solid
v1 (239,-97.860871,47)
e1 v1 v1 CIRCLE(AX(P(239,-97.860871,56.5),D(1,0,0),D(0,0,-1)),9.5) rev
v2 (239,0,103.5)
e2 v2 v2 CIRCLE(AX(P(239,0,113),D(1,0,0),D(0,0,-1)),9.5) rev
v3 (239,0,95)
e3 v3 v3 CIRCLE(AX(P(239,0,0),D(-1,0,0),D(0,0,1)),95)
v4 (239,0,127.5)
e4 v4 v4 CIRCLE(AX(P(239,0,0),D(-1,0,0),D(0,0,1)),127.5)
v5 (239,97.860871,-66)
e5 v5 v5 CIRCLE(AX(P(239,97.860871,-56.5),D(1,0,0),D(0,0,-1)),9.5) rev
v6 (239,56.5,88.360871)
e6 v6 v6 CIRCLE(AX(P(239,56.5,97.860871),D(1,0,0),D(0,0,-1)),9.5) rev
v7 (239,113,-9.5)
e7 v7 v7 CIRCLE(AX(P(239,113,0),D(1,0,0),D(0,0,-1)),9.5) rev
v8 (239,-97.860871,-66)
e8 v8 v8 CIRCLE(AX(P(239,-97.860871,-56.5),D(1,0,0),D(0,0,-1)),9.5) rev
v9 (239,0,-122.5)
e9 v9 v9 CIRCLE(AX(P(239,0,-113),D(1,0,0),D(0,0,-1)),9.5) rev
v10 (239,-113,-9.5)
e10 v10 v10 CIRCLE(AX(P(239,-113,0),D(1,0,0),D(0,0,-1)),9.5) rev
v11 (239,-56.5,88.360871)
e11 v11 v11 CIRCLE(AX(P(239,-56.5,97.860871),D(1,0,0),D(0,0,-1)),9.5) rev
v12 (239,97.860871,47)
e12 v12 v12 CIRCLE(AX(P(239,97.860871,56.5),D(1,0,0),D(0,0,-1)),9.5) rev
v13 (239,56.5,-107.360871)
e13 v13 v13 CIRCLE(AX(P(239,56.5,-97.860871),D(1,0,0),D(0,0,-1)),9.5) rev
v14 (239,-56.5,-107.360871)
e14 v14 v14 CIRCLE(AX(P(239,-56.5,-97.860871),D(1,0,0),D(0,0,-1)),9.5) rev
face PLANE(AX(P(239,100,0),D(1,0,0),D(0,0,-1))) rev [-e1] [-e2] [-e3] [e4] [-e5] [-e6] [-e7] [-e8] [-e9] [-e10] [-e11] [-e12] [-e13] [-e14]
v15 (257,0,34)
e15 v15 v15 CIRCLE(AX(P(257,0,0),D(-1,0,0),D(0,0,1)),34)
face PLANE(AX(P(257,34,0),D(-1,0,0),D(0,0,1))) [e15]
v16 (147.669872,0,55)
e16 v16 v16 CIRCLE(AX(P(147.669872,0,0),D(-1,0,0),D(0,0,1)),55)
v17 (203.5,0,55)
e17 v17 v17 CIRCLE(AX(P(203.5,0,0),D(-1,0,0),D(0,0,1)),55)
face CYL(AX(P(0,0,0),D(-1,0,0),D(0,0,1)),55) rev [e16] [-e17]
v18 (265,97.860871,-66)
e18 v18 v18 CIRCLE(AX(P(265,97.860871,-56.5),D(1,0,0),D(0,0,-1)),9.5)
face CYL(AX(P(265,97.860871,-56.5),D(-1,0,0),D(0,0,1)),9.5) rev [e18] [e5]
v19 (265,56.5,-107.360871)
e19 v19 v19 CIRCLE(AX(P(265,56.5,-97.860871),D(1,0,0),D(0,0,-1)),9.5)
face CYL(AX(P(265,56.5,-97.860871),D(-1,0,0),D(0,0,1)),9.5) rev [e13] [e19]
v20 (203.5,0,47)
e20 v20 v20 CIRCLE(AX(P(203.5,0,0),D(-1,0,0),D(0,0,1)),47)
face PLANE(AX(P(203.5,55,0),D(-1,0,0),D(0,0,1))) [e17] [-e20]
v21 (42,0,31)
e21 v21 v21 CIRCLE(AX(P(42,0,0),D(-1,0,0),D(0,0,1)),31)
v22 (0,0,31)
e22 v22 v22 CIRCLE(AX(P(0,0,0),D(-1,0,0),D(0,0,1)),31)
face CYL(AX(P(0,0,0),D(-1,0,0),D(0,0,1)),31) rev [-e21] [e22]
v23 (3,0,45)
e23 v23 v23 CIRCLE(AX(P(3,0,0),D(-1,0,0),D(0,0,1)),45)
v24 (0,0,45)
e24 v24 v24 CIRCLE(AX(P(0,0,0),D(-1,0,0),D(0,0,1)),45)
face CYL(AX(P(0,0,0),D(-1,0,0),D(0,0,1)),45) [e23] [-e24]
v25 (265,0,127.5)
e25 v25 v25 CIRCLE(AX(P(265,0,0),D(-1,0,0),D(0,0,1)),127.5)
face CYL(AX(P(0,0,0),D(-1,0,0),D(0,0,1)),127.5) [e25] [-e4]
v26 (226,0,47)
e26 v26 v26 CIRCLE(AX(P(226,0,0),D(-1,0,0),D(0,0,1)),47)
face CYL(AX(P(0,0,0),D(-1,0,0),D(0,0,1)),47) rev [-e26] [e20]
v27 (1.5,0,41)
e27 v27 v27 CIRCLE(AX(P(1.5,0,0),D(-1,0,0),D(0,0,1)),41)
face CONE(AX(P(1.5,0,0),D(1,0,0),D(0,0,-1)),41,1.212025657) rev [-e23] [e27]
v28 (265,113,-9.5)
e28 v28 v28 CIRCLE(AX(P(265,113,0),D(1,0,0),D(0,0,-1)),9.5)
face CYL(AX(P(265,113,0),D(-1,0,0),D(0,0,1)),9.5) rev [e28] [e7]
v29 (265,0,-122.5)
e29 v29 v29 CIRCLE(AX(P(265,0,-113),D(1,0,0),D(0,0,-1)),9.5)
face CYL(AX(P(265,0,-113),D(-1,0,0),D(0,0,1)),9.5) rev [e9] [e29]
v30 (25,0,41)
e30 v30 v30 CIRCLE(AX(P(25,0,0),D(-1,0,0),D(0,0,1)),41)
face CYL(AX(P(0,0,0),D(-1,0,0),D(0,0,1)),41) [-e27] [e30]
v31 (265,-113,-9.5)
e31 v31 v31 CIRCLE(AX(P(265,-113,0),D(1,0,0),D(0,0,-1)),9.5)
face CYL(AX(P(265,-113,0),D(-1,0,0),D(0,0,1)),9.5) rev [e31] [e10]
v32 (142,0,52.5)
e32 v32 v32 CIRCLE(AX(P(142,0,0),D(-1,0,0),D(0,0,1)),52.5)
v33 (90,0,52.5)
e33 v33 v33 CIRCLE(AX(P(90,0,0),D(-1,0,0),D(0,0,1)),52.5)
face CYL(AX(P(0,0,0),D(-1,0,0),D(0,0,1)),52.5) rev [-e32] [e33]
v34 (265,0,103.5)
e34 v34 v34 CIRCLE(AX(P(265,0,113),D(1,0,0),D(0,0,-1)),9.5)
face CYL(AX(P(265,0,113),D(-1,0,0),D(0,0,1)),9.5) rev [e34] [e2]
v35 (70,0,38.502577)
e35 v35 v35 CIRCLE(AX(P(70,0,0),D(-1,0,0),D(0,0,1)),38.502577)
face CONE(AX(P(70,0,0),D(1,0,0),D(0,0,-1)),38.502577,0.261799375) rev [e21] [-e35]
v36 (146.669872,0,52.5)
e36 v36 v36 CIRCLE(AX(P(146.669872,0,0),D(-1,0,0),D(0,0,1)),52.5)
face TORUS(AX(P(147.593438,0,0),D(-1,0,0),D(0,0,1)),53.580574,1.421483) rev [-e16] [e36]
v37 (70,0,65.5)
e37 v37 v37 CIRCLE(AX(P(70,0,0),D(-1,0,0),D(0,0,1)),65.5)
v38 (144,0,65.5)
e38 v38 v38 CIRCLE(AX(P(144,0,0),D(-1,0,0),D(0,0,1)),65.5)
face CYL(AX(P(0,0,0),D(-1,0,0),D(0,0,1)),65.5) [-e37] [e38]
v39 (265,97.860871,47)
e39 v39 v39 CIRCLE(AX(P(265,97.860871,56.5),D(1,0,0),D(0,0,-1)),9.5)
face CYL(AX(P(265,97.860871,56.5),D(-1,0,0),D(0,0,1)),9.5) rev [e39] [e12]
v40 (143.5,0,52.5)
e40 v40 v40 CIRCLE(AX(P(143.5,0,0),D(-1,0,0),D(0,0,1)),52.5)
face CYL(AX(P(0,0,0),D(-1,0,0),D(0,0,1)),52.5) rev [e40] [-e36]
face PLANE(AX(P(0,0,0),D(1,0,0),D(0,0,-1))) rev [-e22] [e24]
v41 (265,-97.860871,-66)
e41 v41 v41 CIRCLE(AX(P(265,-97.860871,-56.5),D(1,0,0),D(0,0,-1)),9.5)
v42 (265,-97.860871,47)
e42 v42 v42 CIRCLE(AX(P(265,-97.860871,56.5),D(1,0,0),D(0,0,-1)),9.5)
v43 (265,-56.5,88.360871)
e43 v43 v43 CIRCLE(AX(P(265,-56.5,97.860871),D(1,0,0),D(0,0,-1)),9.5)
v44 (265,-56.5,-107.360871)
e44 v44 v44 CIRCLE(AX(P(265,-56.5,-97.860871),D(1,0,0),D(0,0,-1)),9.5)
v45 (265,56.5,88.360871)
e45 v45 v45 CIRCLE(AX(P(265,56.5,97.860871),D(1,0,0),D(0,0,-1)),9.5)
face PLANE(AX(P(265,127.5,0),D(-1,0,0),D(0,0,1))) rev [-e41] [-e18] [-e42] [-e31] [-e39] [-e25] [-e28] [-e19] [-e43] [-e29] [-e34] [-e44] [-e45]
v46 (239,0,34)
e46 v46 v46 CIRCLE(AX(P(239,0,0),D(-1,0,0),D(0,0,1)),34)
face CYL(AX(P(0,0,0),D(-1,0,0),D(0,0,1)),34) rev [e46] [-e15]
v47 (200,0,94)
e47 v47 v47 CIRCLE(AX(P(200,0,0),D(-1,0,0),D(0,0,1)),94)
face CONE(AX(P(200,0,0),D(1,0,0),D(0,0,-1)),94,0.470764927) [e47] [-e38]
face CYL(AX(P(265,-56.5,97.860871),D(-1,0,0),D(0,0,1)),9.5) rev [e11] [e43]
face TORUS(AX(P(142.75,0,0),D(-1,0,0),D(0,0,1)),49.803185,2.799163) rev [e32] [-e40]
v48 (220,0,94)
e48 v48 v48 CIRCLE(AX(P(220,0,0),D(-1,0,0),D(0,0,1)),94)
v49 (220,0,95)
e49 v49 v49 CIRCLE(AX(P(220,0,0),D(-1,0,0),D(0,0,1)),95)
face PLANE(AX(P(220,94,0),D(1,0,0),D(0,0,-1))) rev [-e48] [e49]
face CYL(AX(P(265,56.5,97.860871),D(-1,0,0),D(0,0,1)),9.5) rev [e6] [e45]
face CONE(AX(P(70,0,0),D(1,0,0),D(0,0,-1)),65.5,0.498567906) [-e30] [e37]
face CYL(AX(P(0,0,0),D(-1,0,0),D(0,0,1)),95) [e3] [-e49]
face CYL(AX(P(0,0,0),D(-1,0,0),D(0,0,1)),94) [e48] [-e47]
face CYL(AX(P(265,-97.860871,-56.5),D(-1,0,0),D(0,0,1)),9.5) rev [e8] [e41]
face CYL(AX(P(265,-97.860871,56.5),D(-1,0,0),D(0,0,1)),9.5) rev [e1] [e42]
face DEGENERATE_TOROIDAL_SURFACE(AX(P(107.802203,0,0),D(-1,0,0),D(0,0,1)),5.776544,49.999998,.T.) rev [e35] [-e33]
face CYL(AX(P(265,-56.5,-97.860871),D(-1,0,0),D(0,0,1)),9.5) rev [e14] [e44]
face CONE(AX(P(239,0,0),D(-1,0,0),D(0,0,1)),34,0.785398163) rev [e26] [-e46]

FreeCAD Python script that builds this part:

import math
import FreeCAD as App
import Part
import Sketcher
from FreeCAD import Vector
Q = App.Units.Quantity


def add_polygon(sketch, points):
    """Adds a closed chain of lines whose ends are joined by coincident constraints."""
    first, n = sketch.GeometryCount, len(points)
    for a, b in zip(points, points[1:] + points[:1]):
        sketch.addGeometry(Part.LineSegment(App.Vector(*a, 0), App.Vector(*b, 0)), False)
    for i in range(n):
        sketch.addConstraint(Sketcher.Constraint("Coincident", first + i, 2, first + (i + 1) % n, 1))

doc = App.newDocument("Part")
params = doc.addObject("Spreadsheet::Sheet", "Params")
for row, (alias, value) in enumerate([
    ("sketch1_width", "265 mm"),
    ("sketch1_width2", "26 mm"),
    ("sketch1_width3", "19 mm"),
    ("sketch1_width4", "20 mm"),
    ("sketch1_width5", "74 mm"),
    ("revolution_angle", "360 deg"),
    ("sketch2_radius", "49.999998 mm"),
    ("sketch2_width", "257 mm"),
    ("sketch2_width2", "18 mm"),
    ("sketch2_width3", "52 mm"),
    ("sketch2_width4", "42 mm"),
    ("groove_angle", "360 deg"),
    ("sketch3_diameter", "19 mm"),
    ("sketch4_diameter", "19 mm"),
    ("sketch5_diameter", "19 mm"),
    ("sketch6_diameter", "19 mm"),
    ("sketch7_diameter", "19 mm"),
    ("sketch8_diameter", "19 mm"),
    ("sketch9_diameter", "19 mm"),
    ("sketch10_diameter", "19 mm"),
    ("sketch11_diameter", "19 mm"),
    ("sketch12_diameter", "19 mm"),
    ("sketch13_diameter", "19 mm"),
    ("sketch14_diameter", "19 mm"),
], start=1):
    params.set(f"A{row}", alias)
    params.set(f"B{row}", "=" + value)
    params.setAlias(f"B{row}", alias)

body = doc.addObject("PartDesign::Body", "Body")

# Sketch on XY plane
sketch1 = body.newObject("Sketcher::SketchObject", "Sketch")
sketch1.AttachmentSupport = (doc.getObject("XY_Plane"), [""])
sketch1.MapMode = "FlatFace"
add_polygon(sketch1, [(0, 0), (265, 0), (265, 127.5), (239, 127.5), (239, 95), (220, 95), (220, 94), (200, 94), (144, 65.5), (70, 65.5), (25, 41), (1.5, 41), (3, 45), (0, 45)])  # lines 0-13
sketch1.addConstraint([
    Sketcher.Constraint("Horizontal", 0),
    Sketcher.Constraint("Vertical", 1),
    Sketcher.Constraint("Horizontal", 2),
    Sketcher.Constraint("Vertical", 3),
    Sketcher.Constraint("Horizontal", 4),
    Sketcher.Constraint("Vertical", 5),
    Sketcher.Constraint("Horizontal", 6),
    Sketcher.Constraint("Horizontal", 8),
    Sketcher.Constraint("Horizontal", 10),
    Sketcher.Constraint("Horizontal", 12),
    Sketcher.Constraint("Vertical", 13),
    Sketcher.Constraint("Coincident", 13, 2, -1, 1),
    Sketcher.Constraint("DistanceX", 0, 1, 0, 2, 265.0),
    Sketcher.Constraint("DistanceX", 2, 2, 2, 1, 26.0),
    Sketcher.Constraint("DistanceX", 4, 2, 4, 1, 19.0),
    Sketcher.Constraint("DistanceX", 6, 2, 6, 1, 20.0),
    Sketcher.Constraint("DistanceX", 8, 2, 8, 1, 74.0),
    Sketcher.Constraint("DistanceX", 12, 2, 12, 1, 3.0),
    Sketcher.Constraint("DistanceY", 5, 2, 5, 1, 1.0),
    Sketcher.Constraint("DistanceY", 13, 2, 13, 1, 45.0),
    Sketcher.Constraint("DistanceX", 10, 2, 10, 1, 23.5),
    Sketcher.Constraint("DistanceY", 1, 1, 1, 2, 127.5),
    Sketcher.Constraint("DistanceY", 3, 2, 3, 1, 32.5),
    Sketcher.Constraint("DistanceX", -1, 1, 7, 2, 144.0),
    Sketcher.Constraint("DistanceX", -1, 1, 9, 2, 25.0),
    Sketcher.Constraint("DistanceY", -1, 1, 9, 2, 41.0),
    Sketcher.Constraint("DistanceY", 7, 2, 2, 2, 62.0),
])
sketch1.setExpression("Constraints[26]", "Params.sketch1_width")
sketch1.setExpression("Constraints[27]", "Params.sketch1_width2")
sketch1.setExpression("Constraints[28]", "Params.sketch1_width3")
sketch1.setExpression("Constraints[29]", "Params.sketch1_width4")
sketch1.setExpression("Constraints[30]", "Params.sketch1_width5")
revolution = body.newObject("PartDesign::Revolution", "Revolution")
revolution.Profile = sketch1
revolution.ReferenceAxis = (sketch1, ["H_Axis"])
revolution.setExpression("Angle", "Params.revolution_angle")

# Sketch on XY plane
sketch2 = body.newObject("Sketcher::SketchObject", "Sketch001")
sketch2.AttachmentSupport = (doc.getObject("XY_Plane"), [""])
sketch2.MapMode = "FlatFace"
sketch2.addGeometry([
    Part.LineSegment(Vector(0, 0, 0), Vector(257, 0, 0)),  # 0
    Part.LineSegment(Vector(257, 0, 0), Vector(257, 34, 0)),  # 1
    Part.LineSegment(Vector(257, 34, 0), Vector(239, 34, 0)),  # 2
    Part.LineSegment(Vector(239, 34, 0), Vector(226, 47, 0)),  # 3
    Part.LineSegment(Vector(226, 47, 0), Vector(203.5, 47, 0)),  # 4
    Part.LineSegment(Vector(203.5, 47, 0), Vector(203.5, 55, 0)),  # 5
    Part.LineSegment(Vector(203.5, 55, 0), Vector(147.7, 55, 0)),  # 6
    Part.ArcOfCircle(Part.Circle(Vector(147.6, 53.6, 0), Vector(0, 0, 1), 1.4), math.radians(87), math.radians(229)),  # 7
    Part.LineSegment(Vector(146.7, 52.5, 0), Vector(143.5, 52.5, 0)),  # 8
    Part.ArcOfCircle(Part.Circle(Vector(142.8, 49.8, 0), Vector(0, 0, 1), 2.8), math.radians(74), math.radians(106)),  # 9
    Part.LineSegment(Vector(142, 52.5, 0), Vector(90, 52.5, 0)),  # 10
    Part.ArcOfCircle(Part.Circle(Vector(107.8, 5.8, 0), Vector(0, 0, 1), 50), math.radians(111), math.radians(139)),  # 11
    Part.LineSegment(Vector(70, 38.5, 0), Vector(42, 31, 0)),  # 12
    Part.LineSegment(Vector(42, 31, 0), Vector(0, 31, 0)),  # 13
    Part.LineSegment(Vector(0, 31, 0), Vector(0, 0, 0)),  # 14
], False)
sketch2.addConstraint([
    Sketcher.Constraint("Coincident", 0, 2, 1, 1),
    Sketcher.Constraint("Coincident", 1, 2, 2, 1),
    Sketcher.Constraint("Coincident", 2, 2, 3, 1),
    Sketcher.Constraint("Coincident", 3, 2, 4, 1),
    Sketcher.Constraint("Coincident", 4, 2, 5, 1),
    Sketcher.Constraint("Coincident", 5, 2, 6, 1),
    Sketcher.Constraint("Coincident", 6, 2, 7, 1),
    Sketcher.Constraint("Coincident", 7, 2, 8, 1),
    Sketcher.Constraint("Coincident", 8, 2, 9, 1),
    Sketcher.Constraint("Coincident", 9, 2, 10, 1),
    Sketcher.Constraint("Coincident", 10, 2, 11, 1),
    Sketcher.Constraint("Coincident", 11, 2, 12, 1),
    Sketcher.Constraint("Coincident", 12, 2, 13, 1),
    Sketcher.Constraint("Coincident", 13, 2, 14, 1),
    Sketcher.Constraint("Coincident", 14, 2, 0, 1),
    Sketcher.Constraint("Horizontal", 0),
    Sketcher.Constraint("Vertical", 1),
    Sketcher.Constraint("Horizontal", 2),
    Sketcher.Constraint("Horizontal", 4),
    Sketcher.Constraint("Vertical", 5),
    Sketcher.Constraint("Horizontal", 6),
    Sketcher.Constraint("Horizontal", 8),
    Sketcher.Constraint("Horizontal", 10),
    Sketcher.Constraint("Horizontal", 13),
    Sketcher.Constraint("Vertical", 14),
    Sketcher.Constraint("Coincident", 14, 2, -1, 1),
    Sketcher.Constraint("Horizontal", 8, 2, 9, 2),
    Sketcher.Constraint("Radius", 11, 49.999998),
    Sketcher.Constraint("DistanceX", 0, 1, 0, 2, 257.0),
    Sketcher.Constraint("DistanceX", 2, 2, 2, 1, 18.0),
    Sketcher.Constraint("DistanceX", 10, 2, 10, 1, 52.0),
    Sketcher.Constraint("DistanceX", 13, 2, 13, 1, 42.0),
    Sketcher.Constraint("DistanceY", 1, 1, 1, 2, 34.0),
    Sketcher.Constraint("DistanceY", 5, 1, 5, 2, 8.0),
    Sketcher.Constraint("DistanceY", 14, 2, 14, 1, 31.0),
    Sketcher.Constraint("Angle", 3, Q("135 deg")),
    Sketcher.Constraint("Angle", 12, Q("-165.000001 deg")),
    Sketcher.Constraint("DistanceX", 4, 2, 4, 1, 22.5),
    Sketcher.Constraint("DistanceX", -1, 1, 3, 2, 226.0),
    Sketcher.Constraint("DistanceX", -1, 1, 9, 2, 142.0),
    Sketcher.Constraint("DistanceX", -1, 1, 11, 2, 70.0),
    Sketcher.Constraint("DistanceX", 7, 2, 6, 2, 1.0),
    Sketcher.Constraint("DistanceY", -1, 1, 7, 2, 52.5),
    Sketcher.Constraint("DistanceX", -1, 1, 8, 2, 143.5),
    Sketcher.Constraint("Radius", 7, 1.421483),
    Sketcher.Constraint("Radius", 9, 2.799163),
    Sketcher.Constraint("DistanceX", 6, 2, 6, 1, 55.830128),
])
sketch2.setExpression("Constraints[27]", "Params.sketch2_radius")
sketch2.setExpression("Constraints[28]", "Params.sketch2_width")
sketch2.setExpression("Constraints[29]", "Params.sketch2_width2")
sketch2.setExpression("Constraints[30]", "Params.sketch2_width3")
sketch2.setExpression("Constraints[31]", "Params.sketch2_width4")
groove = body.newObject("PartDesign::Groove", "Groove")
groove.Profile = sketch2
groove.ReferenceAxis = (sketch2, ["H_Axis"])
groove.setExpression("Angle", "Params.groove_angle")

# Sketch on YZ plane
sketch3 = body.newObject("Sketcher::SketchObject", "Sketch002")
sketch3.AttachmentSupport = (doc.getObject("YZ_Plane"), [""])
sketch3.MapMode = "FlatFace"
sketch3.addGeometry(Part.Circle(Vector(113, 0, 0), Vector(0, 0, 1), 10), False)
sketch3.addConstraint([
    Sketcher.Constraint("PointOnObject", 0, 3, -1),
    Sketcher.Constraint("Diameter", 0, 19.0),
    Sketcher.Constraint("DistanceX", -1, 1, 0, 3, 113.0),
])
sketch3.setExpression("Constraints[1]", "Params.sketch3_diameter")
pocket1 = body.newObject("PartDesign::Pocket", "Pocket")
pocket1.Profile = sketch3
pocket1.Type = "ThroughAll"
pocket1.Reversed = True

# Sketch on YZ plane
sketch4 = body.newObject("Sketcher::SketchObject", "Sketch003")
sketch4.AttachmentSupport = (doc.getObject("YZ_Plane"), [""])
sketch4.MapMode = "FlatFace"
sketch4.addGeometry(Part.Circle(Vector(98, 56, 0), Vector(0, 0, 1), 10), False)
sketch4.addConstraint([
    Sketcher.Constraint("Diameter", 0, 19.0),
    Sketcher.Constraint("DistanceY", -1, 1, 0, 3, 56.5),
    Sketcher.Constraint("DistanceX", -1, 1, 0, 3, 97.860871),
])
sketch4.setExpression("Constraints[0]", "Params.sketch4_diameter")
pocket2 = body.newObject("PartDesign::Pocket", "Pocket001")
pocket2.Profile = sketch4
pocket2.Type = "ThroughAll"
pocket2.Reversed = True

# Sketch on YZ plane
sketch5 = body.newObject("Sketcher::SketchObject", "Sketch004")
sketch5.AttachmentSupport = (doc.getObject("YZ_Plane"), [""])
sketch5.MapMode = "FlatFace"
sketch5.addGeometry(Part.Circle(Vector(56, 98, 0), Vector(0, 0, 1), 10), False)
sketch5.addConstraint([
    Sketcher.Constraint("Diameter", 0, 19.0),
    Sketcher.Constraint("DistanceX", -1, 1, 0, 3, 56.5),
    Sketcher.Constraint("DistanceY", -1, 1, 0, 3, 97.860871),
])
sketch5.setExpression("Constraints[0]", "Params.sketch5_diameter")
pocket3 = body.newObject("PartDesign::Pocket", "Pocket002")
pocket3.Profile = sketch5
pocket3.Type = "ThroughAll"
pocket3.Reversed = True

# Sketch on YZ plane
sketch6 = body.newObject("Sketcher::SketchObject", "Sketch005")
sketch6.AttachmentSupport = (doc.getObject("YZ_Plane"), [""])
sketch6.MapMode = "FlatFace"
sketch6.addGeometry(Part.Circle(Vector(0, 113, 0), Vector(0, 0, 1), 10), False)
sketch6.addConstraint([
    Sketcher.Constraint("PointOnObject", 0, 3, -2),
    Sketcher.Constraint("Diameter", 0, 19.0),
    Sketcher.Constraint("DistanceY", -1, 1, 0, 3, 113.0),
])
sketch6.setExpression("Constraints[1]", "Params.sketch6_diameter")
pocket4 = body.newObject("PartDesign::Pocket", "Pocket003")
pocket4.Profile = sketch6
pocket4.Type = "ThroughAll"
pocket4.Reversed = True

# Sketch on YZ plane
sketch7 = body.newObject("Sketcher::SketchObject", "Sketch006")
sketch7.AttachmentSupport = (doc.getObject("YZ_Plane"), [""])
sketch7.MapMode = "FlatFace"
sketch7.addGeometry(Part.Circle(Vector(-56, 98, 0), Vector(0, 0, 1), 10), False)
sketch7.addConstraint([
    Sketcher.Constraint("Diameter", 0, 19.0),
    Sketcher.Constraint("DistanceX", 0, 3, -1, 1, 56.5),
    Sketcher.Constraint("DistanceY", -1, 1, 0, 3, 97.860871),
])
sketch7.setExpression("Constraints[0]", "Params.sketch7_diameter")
pocket5 = body.newObject("PartDesign::Pocket", "Pocket004")
pocket5.Profile = sketch7
pocket5.Type = "ThroughAll"
pocket5.Reversed = True

# Sketch on YZ plane
sketch8 = body.newObject("Sketcher::SketchObject", "Sketch007")
sketch8.AttachmentSupport = (doc.getObject("YZ_Plane"), [""])
sketch8.MapMode = "FlatFace"
sketch8.addGeometry(Part.Circle(Vector(-98, 56, 0), Vector(0, 0, 1), 10), False)
sketch8.addConstraint([
    Sketcher.Constraint("Diameter", 0, 19.0),
    Sketcher.Constraint("DistanceY", -1, 1, 0, 3, 56.5),
    Sketcher.Constraint("DistanceX", 0, 3, -1, 1, 97.860871),
])
sketch8.setExpression("Constraints[0]", "Params.sketch8_diameter")
pocket6 = body.newObject("PartDesign::Pocket", "Pocket005")
pocket6.Profile = sketch8
pocket6.Type = "ThroughAll"
pocket6.Reversed = True

# Sketch on YZ plane
sketch9 = body.newObject("Sketcher::SketchObject", "Sketch008")
sketch9.AttachmentSupport = (doc.getObject("YZ_Plane"), [""])
sketch9.MapMode = "FlatFace"
sketch9.addGeometry(Part.Circle(Vector(-113, 0, 0), Vector(0, 0, 1), 10), False)
sketch9.addConstraint([
    Sketcher.Constraint("PointOnObject", 0, 3, -1),
    Sketcher.Constraint("Diameter", 0, 19.0),
    Sketcher.Constraint("DistanceX", 0, 3, -1, 1, 113.0),
])
sketch9.setExpression("Constraints[1]", "Params.sketch9_diameter")
pocket7 = body.newObject("PartDesign::Pocket", "Pocket006")
pocket7.Profile = sketch9
pocket7.Type = "ThroughAll"
pocket7.Reversed = True

# Sketch on YZ plane
sketch10 = body.newObject("Sketcher::SketchObject", "Sketch009")
sketch10.AttachmentSupport = (doc.getObject("YZ_Plane"), [""])
sketch10.MapMode = "FlatFace"
sketch10.addGeometry(Part.Circle(Vector(-98, -56, 0), Vector(0, 0, 1), 10), False)
sketch10.addConstraint([
    Sketcher.Constraint("Diameter", 0, 19.0),
    Sketcher.Constraint("DistanceY", 0, 3, -1, 1, 56.5),
    Sketcher.Constraint("DistanceX", 0, 3, -1, 1, 97.860871),
])
sketch10.setExpression("Constraints[0]", "Params.sketch10_diameter")
pocket8 = body.newObject("PartDesign::Pocket", "Pocket007")
pocket8.Profile = sketch10
pocket8.Type = "ThroughAll"
pocket8.Reversed = True

# Sketch on YZ plane
sketch11 = body.newObject("Sketcher::SketchObject", "Sketch010")
sketch11.AttachmentSupport = (doc.getObject("YZ_Plane"), [""])
sketch11.MapMode = "FlatFace"
sketch11.addGeometry(Part.Circle(Vector(-56, -98, 0), Vector(0, 0, 1), 10), False)
sketch11.addConstraint([
    Sketcher.Constraint("Diameter", 0, 19.0),
    Sketcher.Constraint("DistanceX", 0, 3, -1, 1, 56.5),
    Sketcher.Constraint("DistanceY", 0, 3, -1, 1, 97.860871),
])
sketch11.setExpression("Constraints[0]", "Params.sketch11_diameter")
pocket9 = body.newObject("PartDesign::Pocket", "Pocket008")
pocket9.Profile = sketch11
pocket9.Type = "ThroughAll"
pocket9.Reversed = True

# Sketch on YZ plane
sketch12 = body.newObject("Sketcher::SketchObject", "Sketch011")
sketch12.AttachmentSupport = (doc.getObject("YZ_Plane"), [""])
sketch12.MapMode = "FlatFace"
sketch12.addGeometry(Part.Circle(Vector(0, -113, 0), Vector(0, 0, 1), 10), False)
sketch12.addConstraint([
    Sketcher.Constraint("PointOnObject", 0, 3, -2),
    Sketcher.Constraint("Diameter", 0, 19.0),
    Sketcher.Constraint("DistanceY", 0, 3, -1, 1, 113.0),
])
sketch12.setExpression("Constraints[1]", "Params.sketch12_diameter")
pocket10 = body.newObject("PartDesign::Pocket", "Pocket009")
pocket10.Profile = sketch12
pocket10.Type = "ThroughAll"
pocket10.Reversed = True

# Sketch on YZ plane
sketch13 = body.newObject("Sketcher::SketchObject", "Sketch012")
sketch13.AttachmentSupport = (doc.getObject("YZ_Plane"), [""])
sketch13.MapMode = "FlatFace"
sketch13.addGeometry(Part.Circle(Vector(56, -98, 0), Vector(0, 0, 1), 10), False)
sketch13.addConstraint([
    Sketcher.Constraint("Diameter", 0, 19.0),
    Sketcher.Constraint("DistanceX", -1, 1, 0, 3, 56.5),
    Sketcher.Constraint("DistanceY", 0, 3, -1, 1, 97.860871),
])
sketch13.setExpression("Constraints[0]", "Params.sketch13_diameter")
pocket11 = body.newObject("PartDesign::Pocket", "Pocket010")
pocket11.Profile = sketch13
pocket11.Type = "ThroughAll"
pocket11.Reversed = True

# Sketch on YZ plane
sketch14 = body.newObject("Sketcher::SketchObject", "Sketch013")
sketch14.AttachmentSupport = (doc.getObject("YZ_Plane"), [""])
sketch14.MapMode = "FlatFace"
sketch14.addGeometry(Part.Circle(Vector(98, -56, 0), Vector(0, 0, 1), 10), False)
sketch14.addConstraint([
    Sketcher.Constraint("Diameter", 0, 19.0),
    Sketcher.Constraint("DistanceY", 0, 3, -1, 1, 56.5),
    Sketcher.Constraint("DistanceX", -1, 1, 0, 3, 97.860871),
])
sketch14.setExpression("Constraints[0]", "Params.sketch14_diameter")
pocket12 = body.newObject("PartDesign::Pocket", "Pocket011")
pocket12.Profile = sketch14
pocket12.Type = "ThroughAll"
pocket12.Reversed = True

doc.recompute()
